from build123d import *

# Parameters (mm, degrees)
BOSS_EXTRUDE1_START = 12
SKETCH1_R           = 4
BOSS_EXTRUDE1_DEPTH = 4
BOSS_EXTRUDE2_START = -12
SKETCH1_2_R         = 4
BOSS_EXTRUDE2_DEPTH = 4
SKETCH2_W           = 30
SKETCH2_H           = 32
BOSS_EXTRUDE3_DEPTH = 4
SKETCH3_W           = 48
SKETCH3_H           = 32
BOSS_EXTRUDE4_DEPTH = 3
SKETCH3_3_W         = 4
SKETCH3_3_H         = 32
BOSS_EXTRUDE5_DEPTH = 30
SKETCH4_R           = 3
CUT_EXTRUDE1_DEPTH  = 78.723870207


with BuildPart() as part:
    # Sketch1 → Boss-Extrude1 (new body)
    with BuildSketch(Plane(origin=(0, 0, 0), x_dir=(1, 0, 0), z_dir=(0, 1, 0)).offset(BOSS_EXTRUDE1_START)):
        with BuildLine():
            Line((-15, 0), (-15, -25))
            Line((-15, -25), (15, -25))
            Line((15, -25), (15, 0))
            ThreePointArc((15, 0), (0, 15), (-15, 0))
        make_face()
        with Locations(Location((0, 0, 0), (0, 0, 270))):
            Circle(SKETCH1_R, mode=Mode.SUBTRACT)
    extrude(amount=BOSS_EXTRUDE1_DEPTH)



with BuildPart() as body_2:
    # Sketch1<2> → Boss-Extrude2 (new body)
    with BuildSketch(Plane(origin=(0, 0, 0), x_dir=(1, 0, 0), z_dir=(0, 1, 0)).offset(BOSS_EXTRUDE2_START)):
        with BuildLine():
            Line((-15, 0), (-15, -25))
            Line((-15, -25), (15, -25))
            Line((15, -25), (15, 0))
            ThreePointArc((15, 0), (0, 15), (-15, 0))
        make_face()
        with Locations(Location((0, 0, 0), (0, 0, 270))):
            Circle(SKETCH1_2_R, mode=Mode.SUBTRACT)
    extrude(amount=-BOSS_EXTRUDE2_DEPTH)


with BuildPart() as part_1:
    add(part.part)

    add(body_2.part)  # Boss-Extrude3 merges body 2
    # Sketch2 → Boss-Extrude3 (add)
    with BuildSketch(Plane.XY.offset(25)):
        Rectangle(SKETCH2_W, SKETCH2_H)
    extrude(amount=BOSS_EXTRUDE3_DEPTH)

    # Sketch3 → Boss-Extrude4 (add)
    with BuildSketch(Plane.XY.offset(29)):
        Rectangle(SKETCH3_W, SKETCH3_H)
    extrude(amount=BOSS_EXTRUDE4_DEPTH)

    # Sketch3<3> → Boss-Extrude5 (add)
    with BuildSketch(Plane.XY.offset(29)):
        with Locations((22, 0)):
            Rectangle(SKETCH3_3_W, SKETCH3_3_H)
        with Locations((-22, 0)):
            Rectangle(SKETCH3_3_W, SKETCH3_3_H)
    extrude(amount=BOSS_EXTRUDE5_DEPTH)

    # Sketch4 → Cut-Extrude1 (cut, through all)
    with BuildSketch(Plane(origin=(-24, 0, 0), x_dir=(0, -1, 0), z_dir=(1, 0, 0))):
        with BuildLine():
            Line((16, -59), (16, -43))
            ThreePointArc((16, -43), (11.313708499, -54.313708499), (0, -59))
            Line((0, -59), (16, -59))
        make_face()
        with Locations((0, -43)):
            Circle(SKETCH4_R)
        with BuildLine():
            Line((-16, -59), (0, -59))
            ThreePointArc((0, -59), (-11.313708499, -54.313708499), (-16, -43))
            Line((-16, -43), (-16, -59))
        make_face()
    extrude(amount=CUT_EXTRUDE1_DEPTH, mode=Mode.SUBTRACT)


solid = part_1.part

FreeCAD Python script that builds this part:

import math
import FreeCAD as App
import Part
import Sketcher
from FreeCAD import Vector


def add_polygon(sketch, points):
    """Adds a closed chain of lines whose ends are joined by coincident constraints."""
    first, n = sketch.GeometryCount, len(points)
    for a, b in zip(points, points[1:] + points[:1]):
        sketch.addGeometry(Part.LineSegment(App.Vector(*a, 0), App.Vector(*b, 0)), False)
    for i in range(n):
        sketch.addConstraint(Sketcher.Constraint("Coincident", first + i, 2, first + (i + 1) % n, 1))

doc = App.newDocument("Part")
body = doc.addObject("PartDesign::Body", "Body")

# Sketch on XZ plane
sketch1 = body.newObject("Sketcher::SketchObject", "Sketch")
sketch1.AttachmentSupport = (doc.getObject("XZ_Plane"), [""])
sketch1.MapMode = "FlatFace"
sketch1.AttachmentOffset = App.Placement(Vector(0, 0, -12), App.Rotation())
sketch1.addGeometry([
    Part.LineSegment(Vector(-15, 0, 0), Vector(-15, 25, 0)),  # 0
    Part.LineSegment(Vector(-15, 25, 0), Vector(15, 25, 0)),  # 1
    Part.LineSegment(Vector(15, 25, 0), Vector(15, 0, 0)),  # 2
    Part.ArcOfCircle(Part.Circle(Vector(0, 0, 0), Vector(0, 0, 1), 15), math.radians(180), math.radians(360)),  # 3
    Part.Circle(Vector(0, 0, 0), Vector(0, 0, 1), 4),  # 4
], False)
sketch1.addConstraint([
    Sketcher.Constraint("Coincident", 0, 2, 1, 1),
    Sketcher.Constraint("Coincident", 1, 2, 2, 1),
    Sketcher.Constraint("Tangent", 2, 2, 3, 2),
    Sketcher.Constraint("Tangent", 3, 1, 0, 1),
    Sketcher.Constraint("Vertical", 0),
    Sketcher.Constraint("Horizontal", 1),
    Sketcher.Constraint("Vertical", 2),
    Sketcher.Constraint("Coincident", 3, 3, -1, 1),
    Sketcher.Constraint("Coincident", 4, 3, -1, 1),
    Sketcher.Constraint("Diameter", 4, 8.0),
    Sketcher.Constraint("Radius", 3, 15.0),
    Sketcher.Constraint("DistanceY", 0, 1, 0, 2, 25.0),
])
pad1 = body.newObject("PartDesign::Pad", "Pad")
pad1.Profile = sketch1
pad1.Length = 4
pad1.Reversed = True
body2 = doc.addObject("PartDesign::Body", "Body001")

# Sketch on XZ plane
sketch2 = body2.newObject("Sketcher::SketchObject", "Sketch001")
sketch2.AttachmentSupport = (doc.getObject("XZ_Plane001"), [""])
sketch2.MapMode = "FlatFace"
sketch2.AttachmentOffset = App.Placement(Vector(0, 0, 12), App.Rotation())
sketch2.addGeometry([
    Part.LineSegment(Vector(-15, 0, 0), Vector(-15, 25, 0)),  # 0
    Part.LineSegment(Vector(-15, 25, 0), Vector(15, 25, 0)),  # 1
    Part.LineSegment(Vector(15, 25, 0), Vector(15, 0, 0)),  # 2
    Part.ArcOfCircle(Part.Circle(Vector(0, 0, 0), Vector(0, 0, 1), 15), math.radians(180), math.radians(360)),  # 3
    Part.Circle(Vector(0, 0, 0), Vector(0, 0, 1), 4),  # 4
], False)
sketch2.addConstraint([
    Sketcher.Constraint("Coincident", 0, 2, 1, 1),
    Sketcher.Constraint("Coincident", 1, 2, 2, 1),
    Sketcher.Constraint("Tangent", 2, 2, 3, 2),
    Sketcher.Constraint("Tangent", 3, 1, 0, 1),
    Sketcher.Constraint("Vertical", 0),
    Sketcher.Constraint("Horizontal", 1),
    Sketcher.Constraint("Vertical", 2),
    Sketcher.Constraint("Coincident", 3, 3, -1, 1),
    Sketcher.Constraint("Coincident", 4, 3, -1, 1),
    Sketcher.Constraint("Diameter", 4, 8.0),
    Sketcher.Constraint("Radius", 3, 15.0),
    Sketcher.Constraint("DistanceY", 0, 1, 0, 2, 25.0),
])
pad2 = body2.newObject("PartDesign::Pad", "Pad001")
pad2.Profile = sketch2
pad2.Length = 4
body.AllowCompound = True
doc.recompute()

boolean = body.newObject("PartDesign::Boolean", "Boolean")
boolean.Type = "Fuse"
boolean.addObjects([body2])

# Sketch on XY plane
sketch3 = body.newObject("Sketcher::SketchObject", "Sketch002")
sketch3.AttachmentSupport = (doc.getObject("XY_Plane"), [""])
sketch3.MapMode = "FlatFace"
sketch3.AttachmentOffset = App.Placement(Vector(0, 0, 25), App.Rotation())
add_polygon(sketch3, [(-15, 16), (-15, -16), (15, -16), (15, 16)])  # lines 0-3
sketch3.addConstraint([
    Sketcher.Constraint("Vertical", 0),
    Sketcher.Constraint("Horizontal", 1),
    Sketcher.Constraint("Vertical", 2),
    Sketcher.Constraint("Horizontal", 3),
    Sketcher.Constraint("Symmetric", 0, 2, 2, 2, -1, 1),
    Sketcher.Constraint("DistanceX", 1, 1, 1, 2, 30.0),
    Sketcher.Constraint("DistanceY", 0, 2, 0, 1, 32.0),
])
pad3 = body.newObject("PartDesign::Pad", "Pad002")
pad3.Profile = sketch3
pad3.Length = 4

# Sketch on XY plane
sketch4 = body.newObject("Sketcher::SketchObject", "Sketch003")
sketch4.AttachmentSupport = (doc.getObject("XY_Plane"), [""])
sketch4.MapMode = "FlatFace"
sketch4.AttachmentOffset = App.Placement(Vector(0, 0, 29), App.Rotation())
add_polygon(sketch4, [(-24, 16), (-24, -16), (24, -16), (24, 16)])  # lines 0-3
sketch4.addConstraint([
    Sketcher.Constraint("Vertical", 0),
    Sketcher.Constraint("Horizontal", 1),
    Sketcher.Constraint("Vertical", 2),
    Sketcher.Constraint("Horizontal", 3),
    Sketcher.Constraint("Symmetric", 0, 2, 2, 2, -1, 1),
    Sketcher.Constraint("DistanceX", 1, 1, 1, 2, 48.0),
    Sketcher.Constraint("DistanceY", 0, 2, 0, 1, 32.0),
])
pad4 = body.newObject("PartDesign::Pad", "Pad003")
pad4.Profile = sketch4
pad4.Length = 3

# Sketch on XY plane
sketch5 = body.newObject("Sketcher::SketchObject", "Sketch004")
sketch5.AttachmentSupport = (doc.getObject("XY_Plane"), [""])
sketch5.MapMode = "FlatFace"
sketch5.AttachmentOffset = App.Placement(Vector(0, 0, 29), App.Rotation())
add_polygon(sketch5, [(20, 16), (20, -16), (24, -16), (24, 16)])  # lines 0-3
add_polygon(sketch5, [(-24, 16), (-24, -16), (-20, -16), (-20, 16)])  # lines 4-7
sketch5.addConstraint([
    Sketcher.Constraint("Vertical", 0),
    Sketcher.Constraint("Horizontal", 1),
    Sketcher.Constraint("Vertical", 2),
    Sketcher.Constraint("Horizontal", 3),
    Sketcher.Constraint("Vertical", 4),
    Sketcher.Constraint("Horizontal", 5),
    Sketcher.Constraint("Vertical", 6),
    Sketcher.Constraint("Horizontal", 7),
    Sketcher.Constraint("Symmetric", 2, 2, 4, 2, -1, 1),
    Sketcher.Constraint("Symmetric", 0, 2, 6, 2, -1, 1),
    Sketcher.Constraint("Horizontal", 1, 2, 4, 2),
    Sketcher.Constraint("DistanceX", 1, 1, 1, 2, 4.0),
    Sketcher.Constraint("DistanceY", 0, 2, 0, 1, 32.0),
    Sketcher.Constraint("DistanceX", -1, 1, 0, 2, 20.0),
])
pad5 = body.newObject("PartDesign::Pad", "Pad004")
pad5.Profile = sketch5
pad5.Length = 30

# Sketch on YZ plane
sketch6 = body.newObject("Sketcher::SketchObject", "Sketch005")
sketch6.AttachmentSupport = (doc.getObject("YZ_Plane"), [""])
sketch6.MapMode = "FlatFace"
sketch6.AttachmentOffset = App.Placement(Vector(0, 0, -24), App.Rotation())
sketch6.addGeometry([
    Part.LineSegment(Vector(-16, 59, 0), Vector(-16, 43, 0)),  # 0
    Part.ArcOfCircle(Part.Circle(Vector(0, 43, 0), Vector(0, 0, 1), 16), math.radians(90), math.radians(180)),  # 1
    Part.LineSegment(Vector(0, 59, 0), Vector(-16, 59, 0)),  # 2
    Part.Circle(Vector(0, 43, 0), Vector(0, 0, 1), 3),  # 3
    Part.LineSegment(Vector(16, 59, 0), Vector(0, 59, 0)),  # 4
    Part.ArcOfCircle(Part.Circle(Vector(0, 43, 0), Vector(0, 0, 1), 16), math.radians(0), math.radians(90)),  # 5
    Part.LineSegment(Vector(16, 43, 0), Vector(16, 59, 0)),  # 6
], False)
sketch6.addConstraint([
    Sketcher.Constraint("Tangent", 0, 2, 1, 2),
    Sketcher.Constraint("Tangent", 1, 1, 2, 1),
    Sketcher.Constraint("Coincident", 2, 2, 0, 1),
    Sketcher.Constraint("Tangent", 4, 2, 5, 2),
    Sketcher.Constraint("Tangent", 5, 1, 6, 1),
    Sketcher.Constraint("Coincident", 6, 2, 4, 1),
    Sketcher.Constraint("Vertical", 0),
    Sketcher.Constraint("Horizontal", 2),
    Sketcher.Constraint("Horizontal", 4),
    Sketcher.Constraint("Vertical", 6),
    Sketcher.Constraint("Coincident", 3, 3, 1, 3),
    Sketcher.Constraint("Coincident", 5, 3, 1, 3),
    Sketcher.Constraint("Equal", 1, 5),
    Sketcher.Constraint("PointOnObject", 1, 3, -2),
    Sketcher.Constraint("Diameter", 3, 6.0),
    Sketcher.Constraint("Radius", 1, 16.0),
    Sketcher.Constraint("DistanceY", -1, 1, 1, 3, 43.0),
])
pocket1 = body.newObject("PartDesign::Pocket", "Pocket")
pocket1.Profile = sketch6
pocket1.Type = "ThroughAll"
pocket1.Reversed = True

doc.recompute()
